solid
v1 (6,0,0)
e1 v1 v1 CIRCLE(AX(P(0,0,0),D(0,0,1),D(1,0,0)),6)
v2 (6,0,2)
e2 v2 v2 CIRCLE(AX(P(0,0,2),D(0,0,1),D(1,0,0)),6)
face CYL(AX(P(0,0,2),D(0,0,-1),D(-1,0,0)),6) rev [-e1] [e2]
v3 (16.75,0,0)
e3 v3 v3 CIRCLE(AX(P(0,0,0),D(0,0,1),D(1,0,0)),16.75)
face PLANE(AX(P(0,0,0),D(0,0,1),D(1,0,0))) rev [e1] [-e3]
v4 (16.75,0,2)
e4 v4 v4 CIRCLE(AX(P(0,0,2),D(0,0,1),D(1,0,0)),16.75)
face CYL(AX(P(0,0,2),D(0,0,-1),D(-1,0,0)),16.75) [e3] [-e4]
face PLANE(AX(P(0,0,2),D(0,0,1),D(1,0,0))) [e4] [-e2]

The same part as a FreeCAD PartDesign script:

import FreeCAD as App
import Part
import Sketcher
Q = App.Units.Quantity

doc = App.newDocument("Part")
body = doc.addObject("PartDesign::Body", "Body")

sketch1 = body.newObject("Sketcher::SketchObject", "Sketch")
sketch1.AttachmentSupport = (doc.getObject("XY_Plane"), [""])
sketch1.MapMode = "FlatFace"
sketch1.addGeometry([
    Part.Circle(App.Vector(0, 0, 0), App.Vector(0, 0, 1), 16.75),
    Part.Circle(App.Vector(0, 0, 0), App.Vector(0, 0, 1), 6),
], False)
sketch1.addConstraint([
    Sketcher.Constraint("Coincident", 0, 3, -1, 1),
    Sketcher.Constraint("Coincident", 1, 3, -1, 1),
    Sketcher.Constraint("Diameter", 1, Q("12 mm")),
    Sketcher.Constraint("Diameter", 0, Q("33.5 mm")),
])
pad1 = body.newObject("PartDesign::Pad", "Pad")
pad1.Profile = sketch1
pad1.Length = 2

doc.recompute()
